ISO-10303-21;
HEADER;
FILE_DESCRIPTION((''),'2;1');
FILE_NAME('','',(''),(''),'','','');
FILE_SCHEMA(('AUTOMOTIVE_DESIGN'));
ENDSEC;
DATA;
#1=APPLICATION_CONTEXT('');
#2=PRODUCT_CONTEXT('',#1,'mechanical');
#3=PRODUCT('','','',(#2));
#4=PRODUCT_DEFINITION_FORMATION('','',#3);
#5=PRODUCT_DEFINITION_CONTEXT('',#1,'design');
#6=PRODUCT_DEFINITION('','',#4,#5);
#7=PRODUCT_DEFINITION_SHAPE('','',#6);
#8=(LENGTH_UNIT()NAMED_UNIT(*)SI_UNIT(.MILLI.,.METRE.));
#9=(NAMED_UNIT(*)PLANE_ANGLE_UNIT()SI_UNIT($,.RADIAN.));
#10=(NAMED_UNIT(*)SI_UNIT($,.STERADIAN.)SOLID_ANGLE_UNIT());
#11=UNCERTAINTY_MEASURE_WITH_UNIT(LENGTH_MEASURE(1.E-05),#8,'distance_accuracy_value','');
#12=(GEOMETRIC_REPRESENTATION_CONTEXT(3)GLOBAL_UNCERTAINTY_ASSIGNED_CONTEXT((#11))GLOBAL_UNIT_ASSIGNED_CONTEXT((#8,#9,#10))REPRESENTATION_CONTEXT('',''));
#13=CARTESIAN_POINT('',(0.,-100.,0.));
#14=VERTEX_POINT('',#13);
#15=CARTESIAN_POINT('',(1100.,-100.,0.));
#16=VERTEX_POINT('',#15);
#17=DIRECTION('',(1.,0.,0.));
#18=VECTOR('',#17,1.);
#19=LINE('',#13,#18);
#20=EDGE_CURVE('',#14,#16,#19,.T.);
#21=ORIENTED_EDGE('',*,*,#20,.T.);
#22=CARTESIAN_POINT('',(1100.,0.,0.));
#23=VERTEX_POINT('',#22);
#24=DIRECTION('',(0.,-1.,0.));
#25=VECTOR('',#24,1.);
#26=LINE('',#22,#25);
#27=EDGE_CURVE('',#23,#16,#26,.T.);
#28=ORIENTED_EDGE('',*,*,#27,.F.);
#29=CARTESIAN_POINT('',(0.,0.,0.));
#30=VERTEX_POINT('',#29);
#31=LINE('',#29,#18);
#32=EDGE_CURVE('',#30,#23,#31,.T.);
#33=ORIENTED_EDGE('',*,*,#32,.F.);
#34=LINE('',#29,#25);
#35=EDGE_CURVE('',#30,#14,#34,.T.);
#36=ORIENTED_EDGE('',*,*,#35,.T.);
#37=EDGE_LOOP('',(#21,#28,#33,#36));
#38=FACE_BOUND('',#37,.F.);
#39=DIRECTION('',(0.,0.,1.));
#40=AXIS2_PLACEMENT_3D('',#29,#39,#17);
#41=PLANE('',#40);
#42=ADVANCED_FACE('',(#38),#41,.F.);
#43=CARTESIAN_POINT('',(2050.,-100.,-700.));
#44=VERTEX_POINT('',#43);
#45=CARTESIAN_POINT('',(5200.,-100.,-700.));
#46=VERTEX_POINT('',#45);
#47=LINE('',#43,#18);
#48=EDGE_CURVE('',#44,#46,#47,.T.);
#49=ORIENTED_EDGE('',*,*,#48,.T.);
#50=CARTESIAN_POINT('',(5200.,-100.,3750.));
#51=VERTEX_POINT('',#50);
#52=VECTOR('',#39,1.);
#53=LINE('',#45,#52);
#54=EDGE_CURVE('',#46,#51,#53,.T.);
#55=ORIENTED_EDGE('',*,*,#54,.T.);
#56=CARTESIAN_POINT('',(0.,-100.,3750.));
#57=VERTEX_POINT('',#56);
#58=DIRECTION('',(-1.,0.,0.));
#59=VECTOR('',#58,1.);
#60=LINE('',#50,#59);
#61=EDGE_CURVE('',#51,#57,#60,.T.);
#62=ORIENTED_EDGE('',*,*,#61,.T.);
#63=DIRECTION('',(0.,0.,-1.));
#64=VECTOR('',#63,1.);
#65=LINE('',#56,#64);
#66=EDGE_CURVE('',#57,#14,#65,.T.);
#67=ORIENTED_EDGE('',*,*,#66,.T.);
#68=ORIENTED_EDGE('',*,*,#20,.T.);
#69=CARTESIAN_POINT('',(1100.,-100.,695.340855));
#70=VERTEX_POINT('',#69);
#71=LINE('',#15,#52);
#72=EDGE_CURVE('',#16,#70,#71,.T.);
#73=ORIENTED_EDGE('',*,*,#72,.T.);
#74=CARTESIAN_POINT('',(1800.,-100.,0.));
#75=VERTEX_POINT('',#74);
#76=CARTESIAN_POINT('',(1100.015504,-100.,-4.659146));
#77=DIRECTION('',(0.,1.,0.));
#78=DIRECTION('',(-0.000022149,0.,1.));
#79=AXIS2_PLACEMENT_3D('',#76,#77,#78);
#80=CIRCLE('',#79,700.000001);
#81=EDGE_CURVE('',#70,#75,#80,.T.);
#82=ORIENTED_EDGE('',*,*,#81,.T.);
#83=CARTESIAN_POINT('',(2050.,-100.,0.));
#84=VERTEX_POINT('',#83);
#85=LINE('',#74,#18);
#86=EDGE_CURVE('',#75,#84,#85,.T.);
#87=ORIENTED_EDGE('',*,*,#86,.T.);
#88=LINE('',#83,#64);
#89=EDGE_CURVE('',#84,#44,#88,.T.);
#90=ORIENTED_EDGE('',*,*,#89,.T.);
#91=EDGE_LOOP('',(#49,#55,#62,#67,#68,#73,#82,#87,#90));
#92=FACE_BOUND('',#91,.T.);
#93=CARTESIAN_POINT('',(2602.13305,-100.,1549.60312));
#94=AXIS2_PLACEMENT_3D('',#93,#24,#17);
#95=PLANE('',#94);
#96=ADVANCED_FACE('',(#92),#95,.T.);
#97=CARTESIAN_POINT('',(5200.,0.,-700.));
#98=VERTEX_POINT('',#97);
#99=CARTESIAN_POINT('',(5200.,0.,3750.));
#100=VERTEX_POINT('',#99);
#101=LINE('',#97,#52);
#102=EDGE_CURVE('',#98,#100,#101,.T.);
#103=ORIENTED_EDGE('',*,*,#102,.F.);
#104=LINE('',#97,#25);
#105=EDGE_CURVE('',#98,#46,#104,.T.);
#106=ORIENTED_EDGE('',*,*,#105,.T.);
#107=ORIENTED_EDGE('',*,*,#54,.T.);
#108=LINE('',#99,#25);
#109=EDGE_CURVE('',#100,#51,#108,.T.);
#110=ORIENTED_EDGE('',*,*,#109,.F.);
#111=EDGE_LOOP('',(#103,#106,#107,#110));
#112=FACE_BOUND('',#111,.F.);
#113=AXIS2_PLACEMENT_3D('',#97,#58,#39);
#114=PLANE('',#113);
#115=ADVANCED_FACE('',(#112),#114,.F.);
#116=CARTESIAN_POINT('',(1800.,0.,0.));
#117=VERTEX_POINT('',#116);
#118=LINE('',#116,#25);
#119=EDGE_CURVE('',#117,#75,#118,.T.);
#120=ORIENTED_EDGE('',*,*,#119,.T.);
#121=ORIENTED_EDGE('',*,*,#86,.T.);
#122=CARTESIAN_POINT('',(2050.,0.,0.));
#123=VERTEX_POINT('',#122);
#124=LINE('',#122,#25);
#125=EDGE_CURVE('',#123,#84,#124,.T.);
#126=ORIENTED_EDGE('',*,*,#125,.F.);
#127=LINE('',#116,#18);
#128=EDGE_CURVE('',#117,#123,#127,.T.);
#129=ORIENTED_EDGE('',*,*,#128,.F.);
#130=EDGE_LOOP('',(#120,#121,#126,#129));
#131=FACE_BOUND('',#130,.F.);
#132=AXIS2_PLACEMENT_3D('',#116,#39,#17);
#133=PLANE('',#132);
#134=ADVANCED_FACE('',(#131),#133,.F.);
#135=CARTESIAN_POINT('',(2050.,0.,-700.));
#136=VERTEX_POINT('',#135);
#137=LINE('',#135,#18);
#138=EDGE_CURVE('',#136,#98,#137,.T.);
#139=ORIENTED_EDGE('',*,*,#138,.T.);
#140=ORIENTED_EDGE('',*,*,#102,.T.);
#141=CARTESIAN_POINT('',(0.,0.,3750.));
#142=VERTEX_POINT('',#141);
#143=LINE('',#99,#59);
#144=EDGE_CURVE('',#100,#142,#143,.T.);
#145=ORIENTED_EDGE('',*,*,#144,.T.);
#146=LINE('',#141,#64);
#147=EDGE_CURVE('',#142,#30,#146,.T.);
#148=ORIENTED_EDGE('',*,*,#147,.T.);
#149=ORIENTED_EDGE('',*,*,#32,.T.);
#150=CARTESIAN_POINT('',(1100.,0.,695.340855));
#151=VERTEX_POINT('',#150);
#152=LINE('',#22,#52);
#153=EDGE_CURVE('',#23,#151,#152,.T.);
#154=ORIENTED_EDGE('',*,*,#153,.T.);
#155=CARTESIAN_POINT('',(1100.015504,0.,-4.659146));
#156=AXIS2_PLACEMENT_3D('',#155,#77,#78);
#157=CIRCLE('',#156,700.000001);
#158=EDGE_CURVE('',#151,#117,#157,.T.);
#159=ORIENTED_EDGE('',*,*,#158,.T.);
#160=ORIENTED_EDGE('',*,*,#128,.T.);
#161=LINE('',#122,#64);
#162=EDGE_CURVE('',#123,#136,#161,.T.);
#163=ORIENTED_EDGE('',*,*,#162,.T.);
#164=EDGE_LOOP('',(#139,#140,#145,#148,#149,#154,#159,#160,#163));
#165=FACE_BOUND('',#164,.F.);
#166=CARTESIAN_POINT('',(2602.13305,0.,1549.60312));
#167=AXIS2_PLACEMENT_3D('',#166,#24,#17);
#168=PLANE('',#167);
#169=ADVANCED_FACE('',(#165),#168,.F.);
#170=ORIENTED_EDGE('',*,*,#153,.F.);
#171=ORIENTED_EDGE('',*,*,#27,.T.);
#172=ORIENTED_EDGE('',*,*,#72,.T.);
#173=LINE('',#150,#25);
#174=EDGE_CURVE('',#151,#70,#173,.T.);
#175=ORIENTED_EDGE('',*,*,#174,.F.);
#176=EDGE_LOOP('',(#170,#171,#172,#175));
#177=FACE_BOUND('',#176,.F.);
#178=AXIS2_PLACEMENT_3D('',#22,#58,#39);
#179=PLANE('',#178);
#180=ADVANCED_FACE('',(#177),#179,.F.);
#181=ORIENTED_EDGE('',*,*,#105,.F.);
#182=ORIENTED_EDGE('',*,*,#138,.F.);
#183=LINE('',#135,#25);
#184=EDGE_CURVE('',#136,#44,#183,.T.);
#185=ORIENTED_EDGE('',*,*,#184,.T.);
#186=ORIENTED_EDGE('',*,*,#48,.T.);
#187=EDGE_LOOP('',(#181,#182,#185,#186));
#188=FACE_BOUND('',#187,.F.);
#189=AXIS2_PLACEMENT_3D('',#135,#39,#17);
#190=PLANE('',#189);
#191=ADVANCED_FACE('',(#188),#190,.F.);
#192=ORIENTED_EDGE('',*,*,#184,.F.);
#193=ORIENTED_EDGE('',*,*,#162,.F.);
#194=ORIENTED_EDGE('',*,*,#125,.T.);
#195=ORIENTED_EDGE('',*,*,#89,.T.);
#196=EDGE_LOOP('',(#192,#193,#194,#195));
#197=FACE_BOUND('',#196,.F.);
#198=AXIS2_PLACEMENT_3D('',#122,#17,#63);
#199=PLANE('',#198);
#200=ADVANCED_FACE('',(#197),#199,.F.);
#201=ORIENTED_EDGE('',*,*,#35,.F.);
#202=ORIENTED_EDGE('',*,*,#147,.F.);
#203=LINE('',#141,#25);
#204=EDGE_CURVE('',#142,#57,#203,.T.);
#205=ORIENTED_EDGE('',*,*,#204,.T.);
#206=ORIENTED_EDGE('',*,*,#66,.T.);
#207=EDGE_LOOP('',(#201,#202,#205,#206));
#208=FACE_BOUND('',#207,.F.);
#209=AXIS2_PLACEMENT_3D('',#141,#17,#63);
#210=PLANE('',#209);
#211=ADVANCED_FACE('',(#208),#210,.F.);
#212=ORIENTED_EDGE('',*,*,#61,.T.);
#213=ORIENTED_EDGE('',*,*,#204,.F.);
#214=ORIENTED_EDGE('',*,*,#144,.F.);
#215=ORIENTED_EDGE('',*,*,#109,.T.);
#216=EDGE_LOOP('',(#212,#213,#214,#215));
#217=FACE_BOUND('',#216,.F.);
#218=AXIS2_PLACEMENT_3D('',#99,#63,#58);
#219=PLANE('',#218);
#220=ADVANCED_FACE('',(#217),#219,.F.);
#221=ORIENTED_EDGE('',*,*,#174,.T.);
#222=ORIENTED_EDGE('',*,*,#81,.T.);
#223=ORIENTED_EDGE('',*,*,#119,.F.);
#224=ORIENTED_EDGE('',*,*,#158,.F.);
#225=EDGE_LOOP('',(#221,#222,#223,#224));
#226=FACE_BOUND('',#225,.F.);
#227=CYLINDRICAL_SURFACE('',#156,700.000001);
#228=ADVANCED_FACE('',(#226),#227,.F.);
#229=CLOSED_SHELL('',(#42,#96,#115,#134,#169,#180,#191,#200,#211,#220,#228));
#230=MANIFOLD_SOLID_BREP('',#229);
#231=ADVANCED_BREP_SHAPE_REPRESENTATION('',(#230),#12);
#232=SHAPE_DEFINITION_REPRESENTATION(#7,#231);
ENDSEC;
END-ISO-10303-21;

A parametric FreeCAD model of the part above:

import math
import FreeCAD as App
import Part
import Sketcher
from FreeCAD import Vector
Q = App.Units.Quantity

doc = App.newDocument("Part")
body = doc.addObject("PartDesign::Body", "Body")

sketch1 = doc.addObject("Sketcher::SketchObject", "Sketch")
body.addObject(sketch1)
sketch1.AttachmentSupport = (doc.XZ_Plane, [""])
sketch1.MapMode = "FlatFace"
sketch1.addGeometry([
    Part.LineSegment(Vector(0, 3750, 0), Vector(0, 0, 0)),
    Part.LineSegment(Vector(0, 0, 0), Vector(1100, 0, 0)),
    Part.LineSegment(Vector(1100, 0, 0), Vector(1100, 695.340855, 0)),
    Part.ArcOfCircle(Part.Circle(Vector(1100.015504, -4.659146, 0), Vector(0, 0, 1), 700.000001), math.radians(0.381359), math.radians(90.001269)),
    Part.LineSegment(Vector(1800, 0, 0), Vector(2050, 0, 0)),
    Part.LineSegment(Vector(2050, 0, 0), Vector(2050, -700, 0)),
    Part.LineSegment(Vector(2050, -700, 0), Vector(5200, -700, 0)),
    Part.LineSegment(Vector(5200, -700, 0), Vector(5200, 3750, 0)),
    Part.LineSegment(Vector(5200, 3750, 0), Vector(0, 3750, 0)),
], False)
sketch1.addConstraint([
    Sketcher.Constraint("Coincident", 0, 2, 1, 1),
    Sketcher.Constraint("Coincident", 1, 2, 2, 1),
    Sketcher.Constraint("Coincident", 2, 2, 3, 2),
    Sketcher.Constraint("Coincident", 3, 1, 4, 1),
    Sketcher.Constraint("Coincident", 4, 2, 5, 1),
    Sketcher.Constraint("Coincident", 5, 2, 6, 1),
    Sketcher.Constraint("Coincident", 6, 2, 7, 1),
    Sketcher.Constraint("Coincident", 7, 2, 8, 1),
    Sketcher.Constraint("Coincident", 8, 2, 0, 1),
    Sketcher.Constraint("Vertical", 0),
    Sketcher.Constraint("Horizontal", 1),
    Sketcher.Constraint("Vertical", 2),
    Sketcher.Constraint("Horizontal", 4),
    Sketcher.Constraint("Vertical", 5),
    Sketcher.Constraint("Horizontal", 6),
    Sketcher.Constraint("Vertical", 7),
    Sketcher.Constraint("Horizontal", 8),
    Sketcher.Constraint("Coincident", 0, 2, -1, 1),
    Sketcher.Constraint("PointOnObject", 4, 2, -1),
    Sketcher.Constraint("Radius", 3, Q("700.000001 mm")),
    Sketcher.Constraint("DistanceX", 1, 1, 1, 2, Q("1100 mm")),
    Sketcher.Constraint("DistanceX", 4, 1, 4, 2, Q("250 mm")),
    Sketcher.Constraint("DistanceX", 6, 1, 6, 2, Q("3150 mm")),
    Sketcher.Constraint("DistanceX", 8, 2, 8, 1, Q("5200 mm")),
    Sketcher.Constraint("DistanceY", 0, 2, 0, 1, Q("3750 mm")),
    Sketcher.Constraint("DistanceY", 5, 2, 5, 1, Q("700 mm")),
    Sketcher.Constraint("DistanceY", 2, 1, 2, 2, Q("695.340855 mm")),
])
pad1 = doc.addObject("PartDesign::Pad", "Pad")
body.addObject(pad1)
pad1.Profile = sketch1
pad1.Length = 100

doc.recompute()
